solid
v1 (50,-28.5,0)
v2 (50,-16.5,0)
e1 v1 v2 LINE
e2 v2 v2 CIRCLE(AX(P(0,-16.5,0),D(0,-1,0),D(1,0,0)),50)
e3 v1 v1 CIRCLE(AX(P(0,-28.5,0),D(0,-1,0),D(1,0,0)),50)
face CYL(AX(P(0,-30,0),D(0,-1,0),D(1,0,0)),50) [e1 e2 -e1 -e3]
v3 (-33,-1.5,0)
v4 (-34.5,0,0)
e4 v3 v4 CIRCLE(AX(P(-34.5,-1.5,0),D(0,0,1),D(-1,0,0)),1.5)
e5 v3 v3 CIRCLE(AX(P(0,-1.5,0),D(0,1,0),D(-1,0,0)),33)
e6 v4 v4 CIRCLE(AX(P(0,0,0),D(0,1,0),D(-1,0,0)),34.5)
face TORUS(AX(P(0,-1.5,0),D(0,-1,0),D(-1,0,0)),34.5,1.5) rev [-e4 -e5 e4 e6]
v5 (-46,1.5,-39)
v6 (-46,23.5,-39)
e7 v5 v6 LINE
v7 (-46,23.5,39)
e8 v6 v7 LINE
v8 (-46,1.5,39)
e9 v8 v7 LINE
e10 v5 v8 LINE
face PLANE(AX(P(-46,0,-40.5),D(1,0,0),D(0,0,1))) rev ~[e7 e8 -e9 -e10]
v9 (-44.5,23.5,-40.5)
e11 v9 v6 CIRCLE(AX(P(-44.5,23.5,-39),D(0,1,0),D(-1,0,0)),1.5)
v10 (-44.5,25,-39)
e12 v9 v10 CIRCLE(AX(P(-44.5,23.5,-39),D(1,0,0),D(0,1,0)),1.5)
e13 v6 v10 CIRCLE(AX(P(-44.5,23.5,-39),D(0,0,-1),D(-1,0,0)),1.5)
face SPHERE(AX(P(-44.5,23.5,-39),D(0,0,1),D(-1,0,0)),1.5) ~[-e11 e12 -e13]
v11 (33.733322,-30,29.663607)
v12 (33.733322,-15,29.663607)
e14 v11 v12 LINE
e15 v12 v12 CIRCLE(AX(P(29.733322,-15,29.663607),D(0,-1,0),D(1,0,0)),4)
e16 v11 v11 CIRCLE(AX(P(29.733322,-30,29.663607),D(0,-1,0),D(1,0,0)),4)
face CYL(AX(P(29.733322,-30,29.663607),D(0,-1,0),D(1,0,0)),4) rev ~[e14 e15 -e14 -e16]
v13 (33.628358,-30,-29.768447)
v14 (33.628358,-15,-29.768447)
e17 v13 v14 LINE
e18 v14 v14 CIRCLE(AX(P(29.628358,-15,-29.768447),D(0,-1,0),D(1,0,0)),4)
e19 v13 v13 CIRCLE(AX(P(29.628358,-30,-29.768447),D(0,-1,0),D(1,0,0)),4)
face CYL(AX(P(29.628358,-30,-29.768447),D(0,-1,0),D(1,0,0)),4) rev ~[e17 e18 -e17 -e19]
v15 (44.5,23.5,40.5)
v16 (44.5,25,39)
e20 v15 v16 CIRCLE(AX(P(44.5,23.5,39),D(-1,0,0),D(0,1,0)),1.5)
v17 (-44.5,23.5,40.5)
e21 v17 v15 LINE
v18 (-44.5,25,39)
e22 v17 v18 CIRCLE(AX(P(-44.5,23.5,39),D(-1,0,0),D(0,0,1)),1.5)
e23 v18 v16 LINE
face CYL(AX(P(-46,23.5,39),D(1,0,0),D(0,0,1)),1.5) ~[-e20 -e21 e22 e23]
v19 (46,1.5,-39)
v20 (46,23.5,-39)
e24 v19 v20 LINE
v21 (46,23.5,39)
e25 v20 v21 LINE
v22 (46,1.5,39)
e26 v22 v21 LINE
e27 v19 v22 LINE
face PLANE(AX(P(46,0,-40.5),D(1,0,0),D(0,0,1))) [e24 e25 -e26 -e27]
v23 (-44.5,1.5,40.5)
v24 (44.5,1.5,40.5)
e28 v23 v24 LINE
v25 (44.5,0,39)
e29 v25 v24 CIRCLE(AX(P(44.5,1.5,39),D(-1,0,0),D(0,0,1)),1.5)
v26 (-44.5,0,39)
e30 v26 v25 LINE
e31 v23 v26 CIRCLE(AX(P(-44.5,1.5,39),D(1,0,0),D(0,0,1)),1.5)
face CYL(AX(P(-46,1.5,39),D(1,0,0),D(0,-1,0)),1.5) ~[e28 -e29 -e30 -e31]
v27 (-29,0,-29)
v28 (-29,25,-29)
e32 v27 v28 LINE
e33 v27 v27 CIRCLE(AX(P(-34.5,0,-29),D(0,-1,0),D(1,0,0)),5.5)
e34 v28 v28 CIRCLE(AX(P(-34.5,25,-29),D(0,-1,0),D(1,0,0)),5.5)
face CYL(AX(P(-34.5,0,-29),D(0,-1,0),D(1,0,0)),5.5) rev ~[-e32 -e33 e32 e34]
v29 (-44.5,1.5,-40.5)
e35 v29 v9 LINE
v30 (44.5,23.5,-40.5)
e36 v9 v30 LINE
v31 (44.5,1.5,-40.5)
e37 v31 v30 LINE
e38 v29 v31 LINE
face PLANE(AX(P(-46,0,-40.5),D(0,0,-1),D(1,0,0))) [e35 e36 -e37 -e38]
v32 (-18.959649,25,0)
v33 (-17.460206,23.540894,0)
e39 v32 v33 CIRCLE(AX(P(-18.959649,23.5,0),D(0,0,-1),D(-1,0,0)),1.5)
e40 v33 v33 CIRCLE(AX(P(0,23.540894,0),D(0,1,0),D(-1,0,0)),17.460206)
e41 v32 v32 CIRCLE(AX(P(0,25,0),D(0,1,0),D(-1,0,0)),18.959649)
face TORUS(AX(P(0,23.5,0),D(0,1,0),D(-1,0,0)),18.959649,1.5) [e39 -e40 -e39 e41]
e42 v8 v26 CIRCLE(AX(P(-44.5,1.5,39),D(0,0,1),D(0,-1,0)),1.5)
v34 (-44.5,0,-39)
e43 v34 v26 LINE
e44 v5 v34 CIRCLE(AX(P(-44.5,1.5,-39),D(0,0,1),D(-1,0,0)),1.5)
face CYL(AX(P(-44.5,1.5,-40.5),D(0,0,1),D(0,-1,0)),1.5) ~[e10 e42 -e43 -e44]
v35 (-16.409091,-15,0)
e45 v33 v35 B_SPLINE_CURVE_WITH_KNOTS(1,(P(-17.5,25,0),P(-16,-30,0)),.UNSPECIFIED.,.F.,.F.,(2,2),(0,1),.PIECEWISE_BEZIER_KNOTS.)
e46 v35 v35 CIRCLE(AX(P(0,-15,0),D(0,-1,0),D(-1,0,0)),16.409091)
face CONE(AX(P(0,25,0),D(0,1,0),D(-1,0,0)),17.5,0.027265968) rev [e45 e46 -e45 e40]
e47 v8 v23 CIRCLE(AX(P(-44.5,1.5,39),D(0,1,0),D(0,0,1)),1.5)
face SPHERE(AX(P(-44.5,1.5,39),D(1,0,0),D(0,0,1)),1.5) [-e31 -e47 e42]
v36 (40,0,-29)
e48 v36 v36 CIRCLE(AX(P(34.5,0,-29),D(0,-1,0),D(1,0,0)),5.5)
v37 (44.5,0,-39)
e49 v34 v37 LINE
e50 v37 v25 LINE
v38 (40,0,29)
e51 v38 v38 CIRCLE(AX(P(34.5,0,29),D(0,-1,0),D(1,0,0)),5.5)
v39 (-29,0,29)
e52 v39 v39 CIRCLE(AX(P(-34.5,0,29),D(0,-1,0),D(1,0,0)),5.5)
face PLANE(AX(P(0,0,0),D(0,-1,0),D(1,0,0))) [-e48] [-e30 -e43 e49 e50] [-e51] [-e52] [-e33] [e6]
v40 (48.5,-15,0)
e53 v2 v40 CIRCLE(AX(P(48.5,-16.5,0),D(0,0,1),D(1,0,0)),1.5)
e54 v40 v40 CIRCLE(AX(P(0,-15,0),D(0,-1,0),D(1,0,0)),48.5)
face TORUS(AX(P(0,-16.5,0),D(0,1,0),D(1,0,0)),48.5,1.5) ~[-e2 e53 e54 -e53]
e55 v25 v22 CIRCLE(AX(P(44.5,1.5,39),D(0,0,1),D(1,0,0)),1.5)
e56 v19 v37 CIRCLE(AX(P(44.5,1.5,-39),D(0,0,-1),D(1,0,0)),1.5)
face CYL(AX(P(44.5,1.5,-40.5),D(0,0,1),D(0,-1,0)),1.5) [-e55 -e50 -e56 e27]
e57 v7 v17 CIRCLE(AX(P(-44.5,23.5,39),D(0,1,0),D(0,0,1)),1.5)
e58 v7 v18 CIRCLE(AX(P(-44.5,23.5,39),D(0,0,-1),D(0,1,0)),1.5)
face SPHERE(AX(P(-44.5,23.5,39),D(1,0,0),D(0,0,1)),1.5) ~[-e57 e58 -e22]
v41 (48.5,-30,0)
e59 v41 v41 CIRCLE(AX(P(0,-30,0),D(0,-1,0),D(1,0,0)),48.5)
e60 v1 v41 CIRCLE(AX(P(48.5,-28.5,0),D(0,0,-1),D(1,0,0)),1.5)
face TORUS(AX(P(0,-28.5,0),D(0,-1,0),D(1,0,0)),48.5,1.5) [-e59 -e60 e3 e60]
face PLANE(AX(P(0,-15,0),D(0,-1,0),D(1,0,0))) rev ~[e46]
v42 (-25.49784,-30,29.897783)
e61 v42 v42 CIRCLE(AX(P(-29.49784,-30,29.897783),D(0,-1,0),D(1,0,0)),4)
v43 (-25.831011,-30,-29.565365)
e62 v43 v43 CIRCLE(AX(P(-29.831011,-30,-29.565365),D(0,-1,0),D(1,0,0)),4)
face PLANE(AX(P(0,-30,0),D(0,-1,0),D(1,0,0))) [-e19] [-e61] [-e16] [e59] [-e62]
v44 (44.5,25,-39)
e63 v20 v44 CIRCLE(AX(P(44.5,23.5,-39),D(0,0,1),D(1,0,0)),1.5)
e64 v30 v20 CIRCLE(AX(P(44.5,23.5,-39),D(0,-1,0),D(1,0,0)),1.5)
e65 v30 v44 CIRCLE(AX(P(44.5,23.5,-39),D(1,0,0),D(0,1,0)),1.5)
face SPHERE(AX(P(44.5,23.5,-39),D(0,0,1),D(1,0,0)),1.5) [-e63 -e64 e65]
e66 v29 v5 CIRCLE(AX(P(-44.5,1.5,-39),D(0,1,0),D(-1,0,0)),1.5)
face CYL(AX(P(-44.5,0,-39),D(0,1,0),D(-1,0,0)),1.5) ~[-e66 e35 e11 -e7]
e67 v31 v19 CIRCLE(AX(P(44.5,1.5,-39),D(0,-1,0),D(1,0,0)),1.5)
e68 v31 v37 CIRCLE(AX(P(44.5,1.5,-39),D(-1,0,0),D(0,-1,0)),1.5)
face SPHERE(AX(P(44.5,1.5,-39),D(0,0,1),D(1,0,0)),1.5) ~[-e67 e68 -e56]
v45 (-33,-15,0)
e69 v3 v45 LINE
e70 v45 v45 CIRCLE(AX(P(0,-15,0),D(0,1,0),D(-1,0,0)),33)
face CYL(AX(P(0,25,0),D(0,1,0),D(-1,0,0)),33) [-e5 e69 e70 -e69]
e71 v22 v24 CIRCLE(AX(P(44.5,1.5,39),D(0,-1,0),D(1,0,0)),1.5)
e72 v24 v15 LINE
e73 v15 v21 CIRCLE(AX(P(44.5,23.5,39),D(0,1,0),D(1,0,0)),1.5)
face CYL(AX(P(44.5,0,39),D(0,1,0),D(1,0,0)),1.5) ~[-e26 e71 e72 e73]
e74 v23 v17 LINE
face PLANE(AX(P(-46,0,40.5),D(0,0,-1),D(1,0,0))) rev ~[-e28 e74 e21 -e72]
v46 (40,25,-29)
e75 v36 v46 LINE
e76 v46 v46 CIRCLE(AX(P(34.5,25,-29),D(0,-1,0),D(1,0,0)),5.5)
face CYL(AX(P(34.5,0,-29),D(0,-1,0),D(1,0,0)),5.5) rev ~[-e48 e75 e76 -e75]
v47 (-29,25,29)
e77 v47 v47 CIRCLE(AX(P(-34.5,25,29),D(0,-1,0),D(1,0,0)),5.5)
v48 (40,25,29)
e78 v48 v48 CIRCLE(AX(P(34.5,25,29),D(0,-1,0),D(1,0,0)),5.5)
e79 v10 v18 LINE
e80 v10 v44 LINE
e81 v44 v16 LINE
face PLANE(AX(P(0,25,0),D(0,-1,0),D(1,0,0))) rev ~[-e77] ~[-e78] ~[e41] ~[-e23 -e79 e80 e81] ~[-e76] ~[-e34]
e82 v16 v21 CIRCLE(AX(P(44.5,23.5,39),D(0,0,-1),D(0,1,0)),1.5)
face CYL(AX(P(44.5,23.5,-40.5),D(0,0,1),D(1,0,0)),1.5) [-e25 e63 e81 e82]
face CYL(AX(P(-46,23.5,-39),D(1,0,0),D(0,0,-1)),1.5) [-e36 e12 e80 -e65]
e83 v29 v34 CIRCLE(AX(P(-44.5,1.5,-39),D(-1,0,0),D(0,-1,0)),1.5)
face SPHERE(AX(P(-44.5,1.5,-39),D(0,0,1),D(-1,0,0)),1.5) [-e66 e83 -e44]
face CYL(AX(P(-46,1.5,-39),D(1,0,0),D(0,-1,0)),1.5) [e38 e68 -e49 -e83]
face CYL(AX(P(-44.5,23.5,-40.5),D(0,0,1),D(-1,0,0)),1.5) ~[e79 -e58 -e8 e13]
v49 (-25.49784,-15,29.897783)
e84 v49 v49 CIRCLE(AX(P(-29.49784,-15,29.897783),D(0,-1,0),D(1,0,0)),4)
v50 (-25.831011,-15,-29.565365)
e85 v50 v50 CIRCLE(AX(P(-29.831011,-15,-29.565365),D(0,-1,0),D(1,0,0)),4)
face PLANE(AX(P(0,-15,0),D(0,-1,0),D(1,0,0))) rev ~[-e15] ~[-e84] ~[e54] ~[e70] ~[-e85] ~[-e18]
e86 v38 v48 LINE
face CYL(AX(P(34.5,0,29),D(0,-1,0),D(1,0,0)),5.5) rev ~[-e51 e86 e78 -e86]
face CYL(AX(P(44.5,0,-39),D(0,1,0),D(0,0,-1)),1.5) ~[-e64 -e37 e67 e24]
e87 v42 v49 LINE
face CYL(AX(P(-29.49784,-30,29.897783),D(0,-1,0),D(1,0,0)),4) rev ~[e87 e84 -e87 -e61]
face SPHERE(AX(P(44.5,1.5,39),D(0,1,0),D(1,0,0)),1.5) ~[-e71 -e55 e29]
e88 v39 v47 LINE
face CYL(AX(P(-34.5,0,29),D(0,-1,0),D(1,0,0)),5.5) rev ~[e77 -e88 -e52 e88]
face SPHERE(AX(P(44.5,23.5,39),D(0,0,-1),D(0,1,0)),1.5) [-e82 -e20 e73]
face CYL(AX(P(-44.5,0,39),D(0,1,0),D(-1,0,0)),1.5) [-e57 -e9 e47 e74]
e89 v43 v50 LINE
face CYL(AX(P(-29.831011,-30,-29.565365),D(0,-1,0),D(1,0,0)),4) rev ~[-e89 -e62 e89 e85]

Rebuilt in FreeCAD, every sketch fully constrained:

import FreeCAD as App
import Part
import Sketcher

V = App.Vector


def edges_at(feature, points):
    """Names of the edges that pass closest to the given points."""
    edges = feature.Shape.Edges
    near = lambda p: min(range(len(edges)), key=lambda i: edges[i].distToShape(Part.Vertex(*p))[0])
    return sorted({f"Edge{near(p) + 1}" for p in points})

doc = App.newDocument("Part")
body = doc.addObject("PartDesign::Body", "Body")

sketch1 = doc.addObject("Sketcher::SketchObject", "Sketch")
body.addObject(sketch1)
sketch1.AttachmentSupport = (doc.XZ_Plane, [""])
sketch1.MapMode = "FlatFace"
sketch1.addGeometry(Part.LineSegment(V(-46, 40.5, 0), V(-46, -40.5, 0)), False)
sketch1.addGeometry(Part.LineSegment(V(-46, -40.5, 0), V(46, -40.5, 0)), False)
sketch1.addGeometry(Part.LineSegment(V(46, -40.5, 0), V(46, 40.5, 0)), False)
sketch1.addGeometry(Part.LineSegment(V(46, 40.5, 0), V(-46, 40.5, 0)), False)
sketch1.addGeometry(Part.Circle(V(-34.5, -29, 0), V(0, 0, 1), 5.5), False)
sketch1.addGeometry(Part.Circle(V(34.5, -29, 0), V(0, 0, 1), 5.5), False)
sketch1.addGeometry(Part.Circle(V(-34.5, 29, 0), V(0, 0, 1), 5.5), False)
sketch1.addGeometry(Part.Circle(V(34.5, 29, 0), V(0, 0, 1), 5.5), False)
sketch1.addConstraint(Sketcher.Constraint("Coincident", 0, 2, 1, 1))
sketch1.addConstraint(Sketcher.Constraint("Coincident", 1, 2, 2, 1))
sketch1.addConstraint(Sketcher.Constraint("Coincident", 2, 2, 3, 1))
sketch1.addConstraint(Sketcher.Constraint("Coincident", 3, 2, 0, 1))
sketch1.addConstraint(Sketcher.Constraint("Vertical", 0))
sketch1.addConstraint(Sketcher.Constraint("Horizontal", 1))
sketch1.addConstraint(Sketcher.Constraint("Vertical", 2))
sketch1.addConstraint(Sketcher.Constraint("Horizontal", 3))
sketch1.addConstraint(Sketcher.Constraint("Equal", 4, 5))
sketch1.addConstraint(Sketcher.Constraint("Equal", 5, 6))
sketch1.addConstraint(Sketcher.Constraint("Equal", 6, 7))
sketch1.addConstraint(Sketcher.Constraint("Symmetric", 5, 3, 6, 3, -1, 1))
sketch1.addConstraint(Sketcher.Constraint("Symmetric", 4, 3, 7, 3, -1, 1))
sketch1.addConstraint(Sketcher.Constraint("Symmetric", 0, 2, 2, 2, -1, 1))
sketch1.addConstraint(Sketcher.Constraint("Symmetric", 4, 3, 5, 3, -2))
sketch1.addConstraint(Sketcher.Constraint("Diameter", 4, 11.0))
sketch1.addConstraint(Sketcher.Constraint("DistanceX", 1, 1, 1, 2, 92.0))
sketch1.addConstraint(Sketcher.Constraint("DistanceY", 0, 2, 0, 1, 81.0))
sketch1.addConstraint(Sketcher.Constraint("DistanceY", 4, 3, -1, 1, 29.0))
sketch1.addConstraint(Sketcher.Constraint("DistanceX", 4, 3, 5, 3, 69.0))
pad1 = doc.addObject("PartDesign::Pad", "Pad")
body.addObject(pad1)
pad1.Profile = sketch1
pad1.Length = 25
pad1.Reversed = True

sketch2 = doc.addObject("Sketcher::SketchObject", "Sketch001")
body.addObject(sketch2)
sketch2.AttachmentSupport = (doc.XZ_Plane, [""])
sketch2.MapMode = "FlatFace"
sketch2.AttachmentOffset = App.Placement(V(0, 0, -25), App.Rotation())
sketch2.addGeometry(Part.Circle(V(0, 0, 0), V(0, 0, 1), 33), False)
sketch2.addConstraint(Sketcher.Constraint("Coincident", 0, 3, -1, 1))
sketch2.addConstraint(Sketcher.Constraint("Diameter", 0, 66.0))

sketch3 = doc.addObject("Sketcher::SketchObject", "Sketch002")
body.addObject(sketch3)
sketch3.AttachmentSupport = (doc.XZ_Plane, [""])
sketch3.MapMode = "FlatFace"
sketch3.addGeometry(Part.Circle(V(0, 0, 0), V(0, 0, 1), 33), False)
sketch3.addConstraint(Sketcher.Constraint("Coincident", 0, 3, -1, 1))
sketch3.addConstraint(Sketcher.Constraint("Diameter", 0, 66.0))

subtractiveloft = doc.addObject("PartDesign::SubtractiveLoft", "SubtractiveLoft")
body.addObject(subtractiveloft)
subtractiveloft.Profile = sketch2
subtractiveloft.Sections = [sketch3]

sketch4 = doc.addObject("Sketcher::SketchObject", "Sketch003")
body.addObject(sketch4)
sketch4.AttachmentSupport = (doc.XZ_Plane, [""])
sketch4.MapMode = "FlatFace"
sketch4.AttachmentOffset = App.Placement(V(0, 0, -25), App.Rotation())
sketch4.addGeometry(Part.Circle(V(0, 0, 0), V(0, 0, 1), 33), False)
sketch4.addConstraint(Sketcher.Constraint("Coincident", 0, 3, -1, 1))
sketch4.addConstraint(Sketcher.Constraint("Diameter", 0, 66.0))
pad2 = doc.addObject("PartDesign::Pad", "Pad001")
body.addObject(pad2)
pad2.Profile = sketch4
pad2.Length = 55

sketch5 = doc.addObject("Sketcher::SketchObject", "Sketch004")
body.addObject(sketch5)
sketch5.AttachmentSupport = (doc.XZ_Plane, [""])
sketch5.MapMode = "FlatFace"
sketch5.AttachmentOffset = App.Placement(V(0, 0, -25), App.Rotation())
sketch5.addGeometry(Part.Circle(V(0, 0, 0), V(0, 0, 1), 17.5), False)
sketch5.addConstraint(Sketcher.Constraint("Coincident", 0, 3, -1, 1))
sketch5.addConstraint(Sketcher.Constraint("Diameter", 0, 35.0))

sketch6 = doc.addObject("Sketcher::SketchObject", "Sketch005")
body.addObject(sketch6)
sketch6.AttachmentSupport = (doc.XZ_Plane, [""])
sketch6.MapMode = "FlatFace"
sketch6.AttachmentOffset = App.Placement(V(0, 0, 30), App.Rotation())
sketch6.addGeometry(Part.Circle(V(0, 0, 0), V(0, 0, 1), 16), False)
sketch6.addConstraint(Sketcher.Constraint("Coincident", 0, 3, -1, 1))
sketch6.addConstraint(Sketcher.Constraint("Diameter", 0, 32.0))

subtractiveloft2 = doc.addObject("PartDesign::SubtractiveLoft", "SubtractiveLoft001")
body.addObject(subtractiveloft2)
subtractiveloft2.Profile = sketch5
subtractiveloft2.Sections = [sketch6]

sketch7 = doc.addObject("Sketcher::SketchObject", "Sketch006")
body.addObject(sketch7)
sketch7.AttachmentSupport = (doc.XZ_Plane, [""])
sketch7.MapMode = "FlatFace"
sketch7.AttachmentOffset = App.Placement(V(0, 0, 30), App.Rotation())
sketch7.addGeometry(Part.Circle(V(0, 0, 0), V(0, 0, 1), 50), False)
sketch7.addConstraint(Sketcher.Constraint("Coincident", 0, 3, -1, 1))
sketch7.addConstraint(Sketcher.Constraint("Diameter", 0, 100.0))
pad3 = doc.addObject("PartDesign::Pad", "Pad002")
body.addObject(pad3)
pad3.Profile = sketch7
pad3.Length = 15
pad3.Reversed = True

sketch8 = doc.addObject("Sketcher::SketchObject", "Sketch007")
body.addObject(sketch8)
sketch8.AttachmentSupport = (doc.XZ_Plane, [""])
sketch8.MapMode = "FlatFace"
sketch8.AttachmentOffset = App.Placement(V(0, 0, 30), App.Rotation())
sketch8.addGeometry(Part.Circle(V(-29.49784, 29.897783, 0), V(0, 0, 1), 4), False)
sketch8.addGeometry(Part.Circle(V(29.733322, 29.663607, 0), V(0, 0, 1), 4), False)
sketch8.addGeometry(Part.Circle(V(-29.831011, -29.565365, 0), V(0, 0, 1), 4), False)
sketch8.addGeometry(Part.Circle(V(29.628358, -29.768447, 0), V(0, 0, 1), 4), False)
sketch8.addConstraint(Sketcher.Constraint("Equal", 0, 1))
sketch8.addConstraint(Sketcher.Constraint("Equal", 1, 2))
sketch8.addConstraint(Sketcher.Constraint("Equal", 2, 3))
sketch8.addConstraint(Sketcher.Constraint("Diameter", 0, 8.0))
sketch8.addConstraint(Sketcher.Constraint("DistanceX", 0, 3, -1, 1, 29.49784))
sketch8.addConstraint(Sketcher.Constraint("DistanceX", -1, 1, 1, 3, 29.733322))
sketch8.addConstraint(Sketcher.Constraint("DistanceX", 2, 3, -1, 1, 29.831011))
sketch8.addConstraint(Sketcher.Constraint("DistanceY", 2, 3, 0, 3, 59.463148))
sketch8.addConstraint(Sketcher.Constraint("DistanceX", 2, 3, 3, 3, 59.459368))
sketch8.addConstraint(Sketcher.Constraint("DistanceY", 3, 3, 2, 3, 0.203082))
sketch8.addConstraint(Sketcher.Constraint("DistanceY", -1, 1, 0, 3, 29.897783))
sketch8.addConstraint(Sketcher.Constraint("DistanceY", -1, 1, 1, 3, 29.663607))
pocket1 = doc.addObject("PartDesign::Pocket", "Pocket")
body.addObject(pocket1)
pocket1.Profile = sketch8
pocket1.Length = 25
doc.recompute()

fillet = doc.addObject("PartDesign::Fillet", "Fillet")
body.addObject(fillet)
fillet.Base = (pocket1, edges_at(pocket1, [
    (46, 25, 0),
    (0, 25, 40.5),
    (46, 12.5, 40.5),
    (46, 0, 0),
    (0, 0, 40.5),
    (46, 12.5, -40.5),
    (-46, 12.5, 40.5),
    (-46, 25, 0),
    (-46, 0, 0),
    (-46, 12.5, -40.5),
    (-50, -30, 0),
    (-50, -15, 0),
    (0, 0, -40.5),
    (0, 25, -40.5),
    (33, 0, 0),
    (17.5, 25, 0),
]))
fillet.Radius = 1.5

doc.recompute()
